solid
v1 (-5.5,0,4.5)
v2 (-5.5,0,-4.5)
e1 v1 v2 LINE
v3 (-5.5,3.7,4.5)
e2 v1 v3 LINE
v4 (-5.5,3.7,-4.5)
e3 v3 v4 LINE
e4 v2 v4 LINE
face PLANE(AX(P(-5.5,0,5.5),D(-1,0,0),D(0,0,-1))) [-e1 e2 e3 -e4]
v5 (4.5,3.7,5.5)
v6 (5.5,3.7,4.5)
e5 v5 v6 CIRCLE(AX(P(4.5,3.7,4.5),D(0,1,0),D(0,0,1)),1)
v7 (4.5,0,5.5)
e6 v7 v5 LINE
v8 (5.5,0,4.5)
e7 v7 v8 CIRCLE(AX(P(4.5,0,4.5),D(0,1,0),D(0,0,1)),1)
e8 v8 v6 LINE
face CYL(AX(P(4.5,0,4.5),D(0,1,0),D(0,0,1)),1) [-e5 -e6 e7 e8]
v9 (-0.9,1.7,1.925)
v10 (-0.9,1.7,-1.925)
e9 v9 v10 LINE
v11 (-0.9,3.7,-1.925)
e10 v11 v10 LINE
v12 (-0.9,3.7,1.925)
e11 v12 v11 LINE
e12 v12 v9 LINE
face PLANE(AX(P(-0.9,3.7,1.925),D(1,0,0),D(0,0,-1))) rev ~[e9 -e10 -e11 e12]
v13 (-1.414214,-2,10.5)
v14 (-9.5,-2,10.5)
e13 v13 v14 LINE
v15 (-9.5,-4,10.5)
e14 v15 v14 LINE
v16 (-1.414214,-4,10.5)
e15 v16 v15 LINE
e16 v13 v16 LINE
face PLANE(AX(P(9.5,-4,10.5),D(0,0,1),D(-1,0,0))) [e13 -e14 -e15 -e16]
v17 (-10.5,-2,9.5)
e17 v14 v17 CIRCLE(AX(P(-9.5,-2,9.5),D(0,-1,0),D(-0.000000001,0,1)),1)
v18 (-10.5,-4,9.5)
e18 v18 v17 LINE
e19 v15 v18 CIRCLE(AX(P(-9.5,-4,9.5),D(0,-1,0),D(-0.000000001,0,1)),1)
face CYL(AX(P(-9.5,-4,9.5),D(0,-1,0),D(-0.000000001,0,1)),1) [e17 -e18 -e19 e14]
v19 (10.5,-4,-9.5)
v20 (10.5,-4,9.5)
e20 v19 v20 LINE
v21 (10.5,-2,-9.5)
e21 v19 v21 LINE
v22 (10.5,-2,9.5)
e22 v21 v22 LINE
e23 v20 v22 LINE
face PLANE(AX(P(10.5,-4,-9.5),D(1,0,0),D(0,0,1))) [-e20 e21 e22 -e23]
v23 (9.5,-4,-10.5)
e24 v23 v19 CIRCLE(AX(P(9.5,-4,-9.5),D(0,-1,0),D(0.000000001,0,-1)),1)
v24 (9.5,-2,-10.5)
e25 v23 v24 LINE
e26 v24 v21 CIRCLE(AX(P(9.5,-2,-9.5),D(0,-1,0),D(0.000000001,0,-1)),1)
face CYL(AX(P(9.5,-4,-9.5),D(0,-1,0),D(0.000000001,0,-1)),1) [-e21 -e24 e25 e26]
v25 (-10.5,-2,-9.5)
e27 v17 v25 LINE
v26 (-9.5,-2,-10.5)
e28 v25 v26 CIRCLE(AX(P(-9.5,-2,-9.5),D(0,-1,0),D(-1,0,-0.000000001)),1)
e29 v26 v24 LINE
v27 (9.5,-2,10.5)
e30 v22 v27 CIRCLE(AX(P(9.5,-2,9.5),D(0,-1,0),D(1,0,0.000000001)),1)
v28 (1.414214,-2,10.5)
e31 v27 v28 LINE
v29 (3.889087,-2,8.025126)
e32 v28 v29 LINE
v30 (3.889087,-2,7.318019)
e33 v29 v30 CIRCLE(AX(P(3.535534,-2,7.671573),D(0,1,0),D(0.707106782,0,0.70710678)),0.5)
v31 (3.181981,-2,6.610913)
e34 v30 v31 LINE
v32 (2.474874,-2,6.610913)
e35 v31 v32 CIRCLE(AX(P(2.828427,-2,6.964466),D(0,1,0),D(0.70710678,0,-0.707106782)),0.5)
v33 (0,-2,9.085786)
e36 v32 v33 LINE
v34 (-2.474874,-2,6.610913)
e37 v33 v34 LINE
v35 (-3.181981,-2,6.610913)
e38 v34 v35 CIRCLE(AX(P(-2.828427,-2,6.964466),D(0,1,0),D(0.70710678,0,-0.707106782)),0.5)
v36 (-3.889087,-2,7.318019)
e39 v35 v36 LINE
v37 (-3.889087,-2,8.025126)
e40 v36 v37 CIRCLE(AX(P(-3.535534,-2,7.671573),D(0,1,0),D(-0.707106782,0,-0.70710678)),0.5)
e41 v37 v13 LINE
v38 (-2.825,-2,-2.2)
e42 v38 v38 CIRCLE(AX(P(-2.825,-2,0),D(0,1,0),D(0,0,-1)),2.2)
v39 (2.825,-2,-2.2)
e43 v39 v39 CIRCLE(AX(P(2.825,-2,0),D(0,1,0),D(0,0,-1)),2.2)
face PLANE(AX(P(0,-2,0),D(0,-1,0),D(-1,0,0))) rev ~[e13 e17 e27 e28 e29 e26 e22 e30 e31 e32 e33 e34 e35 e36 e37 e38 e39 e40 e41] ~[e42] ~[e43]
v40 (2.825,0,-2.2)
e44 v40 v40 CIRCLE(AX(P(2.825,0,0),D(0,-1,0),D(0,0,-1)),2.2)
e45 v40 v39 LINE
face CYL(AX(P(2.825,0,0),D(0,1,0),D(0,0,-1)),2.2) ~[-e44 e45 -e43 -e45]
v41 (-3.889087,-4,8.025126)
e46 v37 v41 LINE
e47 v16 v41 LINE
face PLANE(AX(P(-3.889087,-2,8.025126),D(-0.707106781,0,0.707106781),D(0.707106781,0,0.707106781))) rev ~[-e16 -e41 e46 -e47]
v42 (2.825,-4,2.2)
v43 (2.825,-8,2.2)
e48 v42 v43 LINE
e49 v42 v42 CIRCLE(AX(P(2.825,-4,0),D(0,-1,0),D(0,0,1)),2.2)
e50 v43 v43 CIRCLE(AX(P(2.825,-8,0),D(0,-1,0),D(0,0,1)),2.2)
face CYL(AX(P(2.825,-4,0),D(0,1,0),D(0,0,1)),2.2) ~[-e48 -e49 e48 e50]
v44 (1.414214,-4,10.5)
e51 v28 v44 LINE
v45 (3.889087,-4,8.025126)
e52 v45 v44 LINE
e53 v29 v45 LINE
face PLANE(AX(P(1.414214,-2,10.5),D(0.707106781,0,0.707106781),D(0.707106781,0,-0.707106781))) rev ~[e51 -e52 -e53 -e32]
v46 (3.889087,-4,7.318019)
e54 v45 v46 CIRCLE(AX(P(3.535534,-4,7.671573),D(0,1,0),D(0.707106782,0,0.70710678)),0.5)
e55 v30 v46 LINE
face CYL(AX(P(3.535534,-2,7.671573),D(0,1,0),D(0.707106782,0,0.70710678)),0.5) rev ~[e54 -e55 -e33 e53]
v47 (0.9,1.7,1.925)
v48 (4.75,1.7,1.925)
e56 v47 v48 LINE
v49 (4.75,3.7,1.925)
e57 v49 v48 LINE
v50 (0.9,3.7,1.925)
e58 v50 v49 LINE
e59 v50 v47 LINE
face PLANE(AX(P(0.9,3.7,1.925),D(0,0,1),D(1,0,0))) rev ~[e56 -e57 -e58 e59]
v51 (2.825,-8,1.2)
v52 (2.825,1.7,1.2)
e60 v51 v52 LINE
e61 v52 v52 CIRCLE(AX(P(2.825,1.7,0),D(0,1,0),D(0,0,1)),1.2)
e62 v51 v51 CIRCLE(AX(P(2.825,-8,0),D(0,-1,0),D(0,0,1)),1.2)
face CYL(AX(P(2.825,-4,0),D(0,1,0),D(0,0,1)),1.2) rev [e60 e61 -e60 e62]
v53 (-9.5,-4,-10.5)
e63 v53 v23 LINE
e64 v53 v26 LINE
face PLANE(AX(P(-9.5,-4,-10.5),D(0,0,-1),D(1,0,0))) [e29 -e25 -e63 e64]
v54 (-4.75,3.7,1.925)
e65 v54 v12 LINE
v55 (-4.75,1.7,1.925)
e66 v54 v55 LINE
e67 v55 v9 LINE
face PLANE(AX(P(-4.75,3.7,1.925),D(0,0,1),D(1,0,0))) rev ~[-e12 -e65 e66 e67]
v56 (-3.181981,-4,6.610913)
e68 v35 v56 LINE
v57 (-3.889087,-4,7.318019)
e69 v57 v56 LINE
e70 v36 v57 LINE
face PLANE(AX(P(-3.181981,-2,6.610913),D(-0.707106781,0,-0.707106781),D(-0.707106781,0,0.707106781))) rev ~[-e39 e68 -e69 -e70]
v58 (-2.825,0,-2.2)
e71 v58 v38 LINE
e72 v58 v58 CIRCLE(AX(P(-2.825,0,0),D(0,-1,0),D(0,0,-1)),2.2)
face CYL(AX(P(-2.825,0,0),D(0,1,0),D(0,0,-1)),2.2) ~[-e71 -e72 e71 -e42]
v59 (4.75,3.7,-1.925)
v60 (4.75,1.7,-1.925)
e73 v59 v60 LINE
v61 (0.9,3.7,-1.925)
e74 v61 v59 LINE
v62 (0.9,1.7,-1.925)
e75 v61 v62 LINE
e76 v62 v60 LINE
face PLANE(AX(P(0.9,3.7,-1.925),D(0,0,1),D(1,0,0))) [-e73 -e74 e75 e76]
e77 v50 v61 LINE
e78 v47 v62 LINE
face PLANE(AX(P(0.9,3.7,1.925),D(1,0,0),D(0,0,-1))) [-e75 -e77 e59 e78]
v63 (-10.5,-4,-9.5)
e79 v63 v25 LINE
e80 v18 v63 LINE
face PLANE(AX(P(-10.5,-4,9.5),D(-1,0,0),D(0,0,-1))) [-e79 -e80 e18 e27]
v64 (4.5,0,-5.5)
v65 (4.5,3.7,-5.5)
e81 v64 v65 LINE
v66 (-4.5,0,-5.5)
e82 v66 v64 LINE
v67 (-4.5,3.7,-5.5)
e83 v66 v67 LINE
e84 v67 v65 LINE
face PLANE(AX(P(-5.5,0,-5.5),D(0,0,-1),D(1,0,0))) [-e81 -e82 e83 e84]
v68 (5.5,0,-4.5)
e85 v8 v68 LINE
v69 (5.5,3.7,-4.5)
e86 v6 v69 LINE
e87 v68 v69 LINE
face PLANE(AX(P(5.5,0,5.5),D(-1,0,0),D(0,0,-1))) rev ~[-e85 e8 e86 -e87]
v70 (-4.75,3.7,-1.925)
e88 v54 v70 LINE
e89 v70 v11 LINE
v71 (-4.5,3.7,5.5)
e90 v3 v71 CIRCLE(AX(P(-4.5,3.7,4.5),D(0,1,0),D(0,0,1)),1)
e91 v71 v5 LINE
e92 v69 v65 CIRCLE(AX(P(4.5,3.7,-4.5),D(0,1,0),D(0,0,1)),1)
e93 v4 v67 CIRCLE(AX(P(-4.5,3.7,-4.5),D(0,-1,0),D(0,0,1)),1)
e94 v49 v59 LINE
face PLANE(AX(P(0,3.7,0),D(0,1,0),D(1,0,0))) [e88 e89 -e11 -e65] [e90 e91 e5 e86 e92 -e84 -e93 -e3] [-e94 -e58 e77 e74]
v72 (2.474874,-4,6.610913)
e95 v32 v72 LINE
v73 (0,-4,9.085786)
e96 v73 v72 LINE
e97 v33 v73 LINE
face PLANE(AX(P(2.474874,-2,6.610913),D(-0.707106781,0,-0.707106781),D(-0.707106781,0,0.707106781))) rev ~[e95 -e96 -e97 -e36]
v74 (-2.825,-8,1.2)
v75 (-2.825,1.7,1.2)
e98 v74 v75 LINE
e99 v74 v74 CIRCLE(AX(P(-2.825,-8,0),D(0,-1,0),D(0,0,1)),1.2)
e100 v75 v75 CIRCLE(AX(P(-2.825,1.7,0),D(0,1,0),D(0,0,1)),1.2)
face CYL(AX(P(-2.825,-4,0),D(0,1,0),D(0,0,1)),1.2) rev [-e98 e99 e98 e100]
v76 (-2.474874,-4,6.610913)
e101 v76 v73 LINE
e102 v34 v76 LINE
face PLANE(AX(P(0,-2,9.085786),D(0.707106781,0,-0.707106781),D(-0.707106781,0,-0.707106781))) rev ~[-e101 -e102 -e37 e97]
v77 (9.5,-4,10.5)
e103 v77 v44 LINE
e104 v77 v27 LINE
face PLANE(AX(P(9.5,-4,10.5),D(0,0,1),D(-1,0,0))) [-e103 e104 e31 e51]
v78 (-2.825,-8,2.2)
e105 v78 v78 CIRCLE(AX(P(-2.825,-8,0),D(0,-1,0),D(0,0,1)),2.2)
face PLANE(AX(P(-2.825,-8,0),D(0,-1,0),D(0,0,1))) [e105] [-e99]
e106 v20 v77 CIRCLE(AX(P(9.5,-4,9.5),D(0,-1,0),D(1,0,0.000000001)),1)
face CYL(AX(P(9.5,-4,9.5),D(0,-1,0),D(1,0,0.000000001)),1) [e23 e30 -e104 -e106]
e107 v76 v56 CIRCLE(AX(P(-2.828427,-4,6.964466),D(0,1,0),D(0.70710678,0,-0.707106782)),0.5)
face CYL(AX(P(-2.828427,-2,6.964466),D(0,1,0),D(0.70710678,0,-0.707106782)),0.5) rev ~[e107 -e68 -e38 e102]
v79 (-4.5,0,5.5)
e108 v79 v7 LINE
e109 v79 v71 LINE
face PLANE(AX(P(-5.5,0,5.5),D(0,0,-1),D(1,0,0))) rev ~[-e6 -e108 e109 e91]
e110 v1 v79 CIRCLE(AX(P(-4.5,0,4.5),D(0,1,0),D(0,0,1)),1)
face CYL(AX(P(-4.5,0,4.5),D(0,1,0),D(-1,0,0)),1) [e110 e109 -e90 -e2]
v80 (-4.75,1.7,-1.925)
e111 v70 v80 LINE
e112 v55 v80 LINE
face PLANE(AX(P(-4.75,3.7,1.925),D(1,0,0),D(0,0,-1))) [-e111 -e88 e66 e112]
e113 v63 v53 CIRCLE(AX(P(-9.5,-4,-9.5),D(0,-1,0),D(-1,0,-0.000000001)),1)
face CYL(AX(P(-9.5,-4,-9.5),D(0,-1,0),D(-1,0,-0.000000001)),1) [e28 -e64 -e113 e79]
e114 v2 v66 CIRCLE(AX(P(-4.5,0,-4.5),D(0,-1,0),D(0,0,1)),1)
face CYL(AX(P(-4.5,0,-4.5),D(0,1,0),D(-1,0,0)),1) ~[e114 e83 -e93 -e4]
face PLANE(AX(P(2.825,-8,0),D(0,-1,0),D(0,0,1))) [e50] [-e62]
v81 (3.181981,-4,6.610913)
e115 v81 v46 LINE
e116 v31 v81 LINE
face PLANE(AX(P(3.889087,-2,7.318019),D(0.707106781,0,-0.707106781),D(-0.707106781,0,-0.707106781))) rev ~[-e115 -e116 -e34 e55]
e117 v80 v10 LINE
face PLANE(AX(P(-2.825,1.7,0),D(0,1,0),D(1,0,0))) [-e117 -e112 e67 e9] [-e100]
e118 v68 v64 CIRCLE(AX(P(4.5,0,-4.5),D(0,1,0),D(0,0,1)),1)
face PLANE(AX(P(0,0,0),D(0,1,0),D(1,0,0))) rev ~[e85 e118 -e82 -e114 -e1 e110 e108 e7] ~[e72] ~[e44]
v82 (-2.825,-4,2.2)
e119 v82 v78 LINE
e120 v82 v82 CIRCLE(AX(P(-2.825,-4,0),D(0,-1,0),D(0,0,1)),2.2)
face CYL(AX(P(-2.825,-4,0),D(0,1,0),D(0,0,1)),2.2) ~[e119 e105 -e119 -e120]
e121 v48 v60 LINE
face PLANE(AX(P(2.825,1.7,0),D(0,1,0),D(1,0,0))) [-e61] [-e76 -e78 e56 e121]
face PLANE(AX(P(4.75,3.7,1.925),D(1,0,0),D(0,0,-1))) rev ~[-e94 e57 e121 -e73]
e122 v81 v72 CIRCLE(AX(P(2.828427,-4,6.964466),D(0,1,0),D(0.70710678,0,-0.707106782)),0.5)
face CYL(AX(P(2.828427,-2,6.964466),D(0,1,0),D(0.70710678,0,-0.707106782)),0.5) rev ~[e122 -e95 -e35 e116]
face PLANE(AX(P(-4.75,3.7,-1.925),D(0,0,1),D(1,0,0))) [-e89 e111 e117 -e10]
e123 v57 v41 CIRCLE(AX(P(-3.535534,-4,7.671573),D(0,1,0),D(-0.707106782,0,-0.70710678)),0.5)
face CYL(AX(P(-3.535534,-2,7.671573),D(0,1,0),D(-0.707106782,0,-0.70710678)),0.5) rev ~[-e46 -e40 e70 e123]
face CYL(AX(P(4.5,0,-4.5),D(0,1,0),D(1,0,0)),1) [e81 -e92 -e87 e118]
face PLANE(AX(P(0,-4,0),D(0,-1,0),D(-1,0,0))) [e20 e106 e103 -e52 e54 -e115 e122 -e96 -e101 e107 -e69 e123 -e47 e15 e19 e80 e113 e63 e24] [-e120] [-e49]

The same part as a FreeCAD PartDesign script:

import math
import FreeCAD as App
import Part
import Sketcher
Q = App.Units.Quantity


def edges_at(feature, points):
    """Names of the edges that pass closest to the given points."""
    edges = feature.Shape.Edges
    near = lambda p: min(range(len(edges)), key=lambda i: edges[i].distToShape(Part.Vertex(*p))[0])
    return sorted({f"Edge{near(p) + 1}" for p in points})


def add_polygon(sketch, points):
    """Adds a closed chain of lines whose ends are joined by coincident constraints."""
    first, n = sketch.GeometryCount, len(points)
    for a, b in zip(points, points[1:] + points[:1]):
        sketch.addGeometry(Part.LineSegment(App.Vector(*a, 0), App.Vector(*b, 0)), False)
    for i in range(n):
        sketch.addConstraint(Sketcher.Constraint("Coincident", first + i, 2, first + (i + 1) % n, 1))

doc = App.newDocument("Part")
params = doc.addObject("Spreadsheet::Sheet", "Params")
for row, (alias, value) in enumerate([
    ("sketch1_width", "11 mm"),
    ("pad1_length", "3.7 mm"),
    ("fillet_radius", "1 mm"),
    ("sketch2_width", "3.85 mm"),
    ("pocket1_length", "2 mm"),
    ("sketch3_diameter", "4.4 mm"),
    ("pad2_length", "4 mm"),
    ("sketch4_radius", "1 mm"),
    ("sketch4_width", "19 mm"),
    ("pad3_length", "2 mm"),
    ("sketch5_diameter", "2.4 mm"),
    ("sketch6_radius", "0.5 mm"),
    ("sketch6_length", "1 mm"),
    ("sketch6_length2", "3.5 mm"),
    ("sketch7_diameter", "4.4 mm"),
    ("sketch7_diameter2", "2.4 mm"),
    ("pad4_length", "4 mm"),
], start=1):
    params.set(f"A{row}", alias)
    params.set(f"B{row}", "=" + value)
    params.setAlias(f"B{row}", alias)

body = doc.addObject("PartDesign::Body", "Body")

sketch1 = body.newObject("Sketcher::SketchObject", "Sketch")
sketch1.AttachmentSupport = (doc.getObject("XZ_Plane"), [""])
sketch1.MapMode = "FlatFace"
add_polygon(sketch1, [(-6, -6), (-6, 6), (6, 6), (6, -6)])
sketch1.addConstraint([
    Sketcher.Constraint("Vertical", 0),
    Sketcher.Constraint("Horizontal", 1),
    Sketcher.Constraint("Vertical", 2),
    Sketcher.Constraint("Horizontal", 3),
    Sketcher.Constraint("Symmetric", 0, 2, 2, 2, -1, 1),
    Sketcher.Constraint("Equal", 3, 0),
    Sketcher.Constraint("DistanceX", 1, 1, 1, 2, Q("11 mm")),
])
sketch1.setExpression("Constraints[10]", "Params.sketch1_width")
pad1 = body.newObject("PartDesign::Pad", "Pad")
pad1.Profile = sketch1
pad1.setExpression("Length", "Params.pad1_length")
pad1.Reversed = True
doc.recompute()

fillet = body.newObject("PartDesign::Fillet", "Fillet")
fillet.Base = (pad1, edges_at(pad1, [
    (5.5, 1.85, 5.5),
    (-5.5, 1.85, 5.5),
    (-5.5, 1.85, -5.5),
    (5.5, 1.85, -5.5),
]))
fillet.setExpression("Radius", "Params.fillet_radius")

sketch2 = body.newObject("Sketcher::SketchObject", "Sketch001")
sketch2.AttachmentSupport = (doc.getObject("XZ_Plane"), [""])
sketch2.MapMode = "FlatFace"
sketch2.AttachmentOffset = App.Placement(App.Vector(0, 0, -3.7), App.Rotation())
add_polygon(sketch2, [(-4.8, -1.9), (-4.8, 1.9), (-0.9, 1.9), (-0.9, -1.9)])
add_polygon(sketch2, [(0.9, -1.9), (0.9, 1.9), (4.8, 1.9), (4.8, -1.9)])
sketch2.addConstraint([
    Sketcher.Constraint("Vertical", 0),
    Sketcher.Constraint("Horizontal", 1),
    Sketcher.Constraint("Vertical", 2),
    Sketcher.Constraint("Horizontal", 3),
    Sketcher.Constraint("Vertical", 4),
    Sketcher.Constraint("Horizontal", 5),
    Sketcher.Constraint("Vertical", 6),
    Sketcher.Constraint("Horizontal", 7),
    Sketcher.Constraint("Symmetric", 2, 2, 4, 2, -1, 1),
    Sketcher.Constraint("Symmetric", 0, 2, 6, 2, -1, 1),
    Sketcher.Constraint("Horizontal", 1, 2, 4, 2),
    Sketcher.Constraint("Equal", 7, 0),
    Sketcher.Constraint("DistanceX", 1, 1, 1, 2, Q("3.85 mm")),
    Sketcher.Constraint("DistanceX", 1, 2, -1, 1, Q("0.9 mm")),
])
sketch2.setExpression("Constraints[20]", "Params.sketch2_width")
pocket1 = body.newObject("PartDesign::Pocket", "Pocket")
pocket1.Profile = sketch2
pocket1.setExpression("Length", "Params.pocket1_length")
pocket1.Reversed = True

sketch3 = body.newObject("Sketcher::SketchObject", "Sketch002")
sketch3.AttachmentSupport = (doc.getObject("XZ_Plane"), [""])
sketch3.MapMode = "FlatFace"
sketch3.addGeometry([
    Part.Circle(App.Vector(-2.8, 0, 0), App.Vector(0, 0, 1), 2.2),
    Part.Circle(App.Vector(2.8, 0, 0), App.Vector(0, 0, 1), 2.2),
], False)
sketch3.addConstraint([
    Sketcher.Constraint("Equal", 0, 1),
    Sketcher.Constraint("Symmetric", 0, 3, 1, 3, -1, 1),
    Sketcher.Constraint("PointOnObject", 0, 3, -1),
    Sketcher.Constraint("Diameter", 0, Q("4.4 mm")),
    Sketcher.Constraint("DistanceX", 0, 3, 1, 3, Q("5.65 mm")),
])
sketch3.setExpression("Constraints[3]", "Params.sketch3_diameter")
pad2 = body.newObject("PartDesign::Pad", "Pad001")
pad2.Profile = sketch3
pad2.setExpression("Length", "Params.pad2_length")

sketch4 = body.newObject("Sketcher::SketchObject", "Sketch003")
sketch4.AttachmentSupport = (doc.getObject("XZ_Plane"), [""])
sketch4.MapMode = "FlatFace"
sketch4.AttachmentOffset = App.Placement(App.Vector(0, 0, 4), App.Rotation())
sketch4.addGeometry([
    Part.LineSegment(App.Vector(-9.5, -10.5, 0), App.Vector(9.5, -10.5, 0)),
    Part.ArcOfCircle(Part.Circle(App.Vector(9.5, -9.5, 0), App.Vector(0, 0, 1), 1), math.radians(-90), math.radians(0)),
    Part.LineSegment(App.Vector(10.5, -9.5, 0), App.Vector(10.5, 9.5, 0)),
    Part.ArcOfCircle(Part.Circle(App.Vector(9.5, 9.5, 0), App.Vector(0, 0, 1), 1), math.radians(0), math.radians(90)),
    Part.LineSegment(App.Vector(9.5, 10.5, 0), App.Vector(-9.5, 10.5, 0)),
    Part.ArcOfCircle(Part.Circle(App.Vector(-9.5, 9.5, 0), App.Vector(0, 0, 1), 1), math.radians(90), math.radians(180)),
    Part.LineSegment(App.Vector(-10.5, 9.5, 0), App.Vector(-10.5, -9.5, 0)),
    Part.ArcOfCircle(Part.Circle(App.Vector(-9.5, -9.5, 0), App.Vector(0, 0, 1), 1), math.radians(-180), math.radians(-90)),
], False)
sketch4.addConstraint([
    Sketcher.Constraint("Tangent", 0, 2, 1, 1),
    Sketcher.Constraint("Tangent", 1, 2, 2, 1),
    Sketcher.Constraint("Tangent", 2, 2, 3, 1),
    Sketcher.Constraint("Tangent", 3, 2, 4, 1),
    Sketcher.Constraint("Tangent", 4, 2, 5, 1),
    Sketcher.Constraint("Tangent", 5, 2, 6, 1),
    Sketcher.Constraint("Tangent", 6, 2, 7, 1),
    Sketcher.Constraint("Tangent", 7, 2, 0, 1),
    Sketcher.Constraint("Horizontal", 0),
    Sketcher.Constraint("Vertical", 2),
    Sketcher.Constraint("Horizontal", 4),
    Sketcher.Constraint("Vertical", 6),
    Sketcher.Constraint("Equal", 1, 3),
    Sketcher.Constraint("Equal", 3, 5),
    Sketcher.Constraint("Equal", 5, 7),
    Sketcher.Constraint("Symmetric", 1, 3, 5, 3, -1, 1),
    Sketcher.Constraint("Equal", 4, 2),
    Sketcher.Constraint("Radius", 1, Q("1 mm")),
    Sketcher.Constraint("DistanceX", 0, 1, 0, 2, Q("19 mm")),
])
sketch4.setExpression("Constraints[17]", "Params.sketch4_radius")
sketch4.setExpression("Constraints[18]", "Params.sketch4_width")
pad3 = body.newObject("PartDesign::Pad", "Pad002")
pad3.Profile = sketch4
pad3.setExpression("Length", "Params.pad3_length")
pad3.Reversed = True

sketch5 = body.newObject("Sketcher::SketchObject", "Sketch004")
sketch5.AttachmentSupport = (doc.getObject("XZ_Plane"), [""])
sketch5.MapMode = "FlatFace"
sketch5.AttachmentOffset = App.Placement(App.Vector(0, 0, -3.7), App.Rotation())
sketch5.addGeometry([
    Part.Circle(App.Vector(-2.8, 0, 0), App.Vector(0, 0, 1), 1.2),
    Part.Circle(App.Vector(2.8, 0, 0), App.Vector(0, 0, 1), 1.2),
], False)
sketch5.addConstraint([
    Sketcher.Constraint("Equal", 0, 1),
    Sketcher.Constraint("Symmetric", 0, 3, 1, 3, -1, 1),
    Sketcher.Constraint("PointOnObject", 0, 3, -1),
    Sketcher.Constraint("Diameter", 0, Q("2.4 mm")),
    Sketcher.Constraint("DistanceX", 0, 3, 1, 3, Q("5.65 mm")),
])
sketch5.setExpression("Constraints[3]", "Params.sketch5_diameter")
pocket2 = body.newObject("PartDesign::Pocket", "Pocket001")
pocket2.Profile = sketch5
pocket2.Type = "ThroughAll"
pocket2.Reversed = True

sketch6 = body.newObject("Sketcher::SketchObject", "Sketch005")
sketch6.AttachmentSupport = (doc.getObject("XZ_Plane"), [""])
sketch6.MapMode = "FlatFace"
sketch6.AttachmentOffset = App.Placement(App.Vector(0, 0, 2), App.Rotation())
sketch6.addGeometry([
    Part.LineSegment(App.Vector(1.4, 10.5, 0), App.Vector(3.9, 8, 0)),
    Part.ArcOfCircle(Part.Circle(App.Vector(3.5, 7.7, 0), App.Vector(0, 0, 1), 0.5), math.radians(-45), math.radians(45)),
    Part.LineSegment(App.Vector(3.9, 7.3, 0), App.Vector(3.2, 6.6, 0)),
    Part.ArcOfCircle(Part.Circle(App.Vector(2.8, 7, 0), App.Vector(0, 0, 1), 0.5), math.radians(-135), math.radians(-45)),
    Part.LineSegment(App.Vector(2.5, 6.6, 0), App.Vector(0, 9.1, 0)),
    Part.LineSegment(App.Vector(0, 9.1, 0), App.Vector(-2.5, 6.6, 0)),
    Part.ArcOfCircle(Part.Circle(App.Vector(-2.8, 7, 0), App.Vector(0, 0, 1), 0.5), math.radians(-135), math.radians(-45)),
    Part.LineSegment(App.Vector(-3.2, 6.6, 0), App.Vector(-3.9, 7.3, 0)),
    Part.ArcOfCircle(Part.Circle(App.Vector(-3.5, 7.7, 0), App.Vector(0, 0, 1), 0.5), math.radians(135), math.radians(225)),
    Part.LineSegment(App.Vector(-3.9, 8, 0), App.Vector(-1.4, 10.5, 0)),
    Part.LineSegment(App.Vector(-1.4, 10.5, 0), App.Vector(1.4, 10.5, 0)),
], False)
sketch6.addConstraint([
    Sketcher.Constraint("Tangent", 0, 2, 1, 2),
    Sketcher.Constraint("Tangent", 1, 1, 2, 1),
    Sketcher.Constraint("Tangent", 2, 2, 3, 2),
    Sketcher.Constraint("Tangent", 3, 1, 4, 1),
    Sketcher.Constraint("Coincident", 4, 2, 5, 1),
    Sketcher.Constraint("Tangent", 5, 2, 6, 2),
    Sketcher.Constraint("Tangent", 6, 1, 7, 1),
    Sketcher.Constraint("Tangent", 7, 2, 8, 2),
    Sketcher.Constraint("Tangent", 8, 1, 9, 1),
    Sketcher.Constraint("Coincident", 9, 2, 10, 1),
    Sketcher.Constraint("Coincident", 10, 2, 0, 1),
    Sketcher.Constraint("Horizontal", 10),
    Sketcher.Constraint("Equal", 1, 3),
    Sketcher.Constraint("Equal", 3, 6),
    Sketcher.Constraint("Equal", 6, 8),
    Sketcher.Constraint("Symmetric", 3, 3, 6, 3, -2),
    Sketcher.Constraint("Symmetric", 1, 3, 8, 3, -2),
    Sketcher.Constraint("PointOnObject", 4, 2, -2),
    Sketcher.Constraint("Perpendicular", 0, 2),
    Sketcher.Constraint("Perpendicular", 2, 4),
    Sketcher.Constraint("Perpendicular", 4, 5),
    Sketcher.Constraint("Perpendicular", 7, 9),
    Sketcher.Constraint("Equal", 0, 4),
    Sketcher.Constraint("Radius", 1, Q("0.5 mm")),
    Sketcher.Constraint("Distance", 2, Q("1 mm")),
    Sketcher.Constraint("Distance", 0, Q("3.5 mm")),
    Sketcher.Constraint("DistanceY", -1, 1, 9, 2, Q("10.5 mm")),
])
sketch6.setExpression("Constraints[23]", "Params.sketch6_radius")
sketch6.setExpression("Constraints[24]", "Params.sketch6_length")
sketch6.setExpression("Constraints[25]", "Params.sketch6_length2")
pocket3 = body.newObject("PartDesign::Pocket", "Pocket002")
pocket3.Profile = sketch6
pocket3.Type = "ThroughAll"
pocket3.Reversed = True

sketch7 = body.newObject("Sketcher::SketchObject", "Sketch006")
sketch7.AttachmentSupport = (doc.getObject("XZ_Plane"), [""])
sketch7.MapMode = "FlatFace"
sketch7.AttachmentOffset = App.Placement(App.Vector(0, 0, 4), App.Rotation())
sketch7.addGeometry([
    Part.Circle(App.Vector(-2.8, 0, 0), App.Vector(0, 0, 1), 2.2),
    Part.Circle(App.Vector(-2.8, 0, 0), App.Vector(0, 0, 1), 1.2),
    Part.Circle(App.Vector(2.8, 0, 0), App.Vector(0, 0, 1), 2.2),
    Part.Circle(App.Vector(2.8, 0, 0), App.Vector(0, 0, 1), 1.2),
], False)
sketch7.addConstraint([
    Sketcher.Constraint("Coincident", 1, 3, 0, 3),
    Sketcher.Constraint("Coincident", 3, 3, 2, 3),
    Sketcher.Constraint("Equal", 0, 2),
    Sketcher.Constraint("Equal", 1, 3),
    Sketcher.Constraint("Symmetric", 0, 3, 2, 3, -1, 1),
    Sketcher.Constraint("PointOnObject", 0, 3, -1),
    Sketcher.Constraint("Diameter", 0, Q("4.4 mm")),
    Sketcher.Constraint("Diameter", 1, Q("2.4 mm")),
    Sketcher.Constraint("DistanceX", 0, 3, 2, 3, Q("5.65 mm")),
])
sketch7.setExpression("Constraints[6]", "Params.sketch7_diameter")
sketch7.setExpression("Constraints[7]", "Params.sketch7_diameter2")
pad4 = body.newObject("PartDesign::Pad", "Pad003")
pad4.Profile = sketch7
pad4.setExpression("Length", "Params.pad4_length")

doc.recompute()
